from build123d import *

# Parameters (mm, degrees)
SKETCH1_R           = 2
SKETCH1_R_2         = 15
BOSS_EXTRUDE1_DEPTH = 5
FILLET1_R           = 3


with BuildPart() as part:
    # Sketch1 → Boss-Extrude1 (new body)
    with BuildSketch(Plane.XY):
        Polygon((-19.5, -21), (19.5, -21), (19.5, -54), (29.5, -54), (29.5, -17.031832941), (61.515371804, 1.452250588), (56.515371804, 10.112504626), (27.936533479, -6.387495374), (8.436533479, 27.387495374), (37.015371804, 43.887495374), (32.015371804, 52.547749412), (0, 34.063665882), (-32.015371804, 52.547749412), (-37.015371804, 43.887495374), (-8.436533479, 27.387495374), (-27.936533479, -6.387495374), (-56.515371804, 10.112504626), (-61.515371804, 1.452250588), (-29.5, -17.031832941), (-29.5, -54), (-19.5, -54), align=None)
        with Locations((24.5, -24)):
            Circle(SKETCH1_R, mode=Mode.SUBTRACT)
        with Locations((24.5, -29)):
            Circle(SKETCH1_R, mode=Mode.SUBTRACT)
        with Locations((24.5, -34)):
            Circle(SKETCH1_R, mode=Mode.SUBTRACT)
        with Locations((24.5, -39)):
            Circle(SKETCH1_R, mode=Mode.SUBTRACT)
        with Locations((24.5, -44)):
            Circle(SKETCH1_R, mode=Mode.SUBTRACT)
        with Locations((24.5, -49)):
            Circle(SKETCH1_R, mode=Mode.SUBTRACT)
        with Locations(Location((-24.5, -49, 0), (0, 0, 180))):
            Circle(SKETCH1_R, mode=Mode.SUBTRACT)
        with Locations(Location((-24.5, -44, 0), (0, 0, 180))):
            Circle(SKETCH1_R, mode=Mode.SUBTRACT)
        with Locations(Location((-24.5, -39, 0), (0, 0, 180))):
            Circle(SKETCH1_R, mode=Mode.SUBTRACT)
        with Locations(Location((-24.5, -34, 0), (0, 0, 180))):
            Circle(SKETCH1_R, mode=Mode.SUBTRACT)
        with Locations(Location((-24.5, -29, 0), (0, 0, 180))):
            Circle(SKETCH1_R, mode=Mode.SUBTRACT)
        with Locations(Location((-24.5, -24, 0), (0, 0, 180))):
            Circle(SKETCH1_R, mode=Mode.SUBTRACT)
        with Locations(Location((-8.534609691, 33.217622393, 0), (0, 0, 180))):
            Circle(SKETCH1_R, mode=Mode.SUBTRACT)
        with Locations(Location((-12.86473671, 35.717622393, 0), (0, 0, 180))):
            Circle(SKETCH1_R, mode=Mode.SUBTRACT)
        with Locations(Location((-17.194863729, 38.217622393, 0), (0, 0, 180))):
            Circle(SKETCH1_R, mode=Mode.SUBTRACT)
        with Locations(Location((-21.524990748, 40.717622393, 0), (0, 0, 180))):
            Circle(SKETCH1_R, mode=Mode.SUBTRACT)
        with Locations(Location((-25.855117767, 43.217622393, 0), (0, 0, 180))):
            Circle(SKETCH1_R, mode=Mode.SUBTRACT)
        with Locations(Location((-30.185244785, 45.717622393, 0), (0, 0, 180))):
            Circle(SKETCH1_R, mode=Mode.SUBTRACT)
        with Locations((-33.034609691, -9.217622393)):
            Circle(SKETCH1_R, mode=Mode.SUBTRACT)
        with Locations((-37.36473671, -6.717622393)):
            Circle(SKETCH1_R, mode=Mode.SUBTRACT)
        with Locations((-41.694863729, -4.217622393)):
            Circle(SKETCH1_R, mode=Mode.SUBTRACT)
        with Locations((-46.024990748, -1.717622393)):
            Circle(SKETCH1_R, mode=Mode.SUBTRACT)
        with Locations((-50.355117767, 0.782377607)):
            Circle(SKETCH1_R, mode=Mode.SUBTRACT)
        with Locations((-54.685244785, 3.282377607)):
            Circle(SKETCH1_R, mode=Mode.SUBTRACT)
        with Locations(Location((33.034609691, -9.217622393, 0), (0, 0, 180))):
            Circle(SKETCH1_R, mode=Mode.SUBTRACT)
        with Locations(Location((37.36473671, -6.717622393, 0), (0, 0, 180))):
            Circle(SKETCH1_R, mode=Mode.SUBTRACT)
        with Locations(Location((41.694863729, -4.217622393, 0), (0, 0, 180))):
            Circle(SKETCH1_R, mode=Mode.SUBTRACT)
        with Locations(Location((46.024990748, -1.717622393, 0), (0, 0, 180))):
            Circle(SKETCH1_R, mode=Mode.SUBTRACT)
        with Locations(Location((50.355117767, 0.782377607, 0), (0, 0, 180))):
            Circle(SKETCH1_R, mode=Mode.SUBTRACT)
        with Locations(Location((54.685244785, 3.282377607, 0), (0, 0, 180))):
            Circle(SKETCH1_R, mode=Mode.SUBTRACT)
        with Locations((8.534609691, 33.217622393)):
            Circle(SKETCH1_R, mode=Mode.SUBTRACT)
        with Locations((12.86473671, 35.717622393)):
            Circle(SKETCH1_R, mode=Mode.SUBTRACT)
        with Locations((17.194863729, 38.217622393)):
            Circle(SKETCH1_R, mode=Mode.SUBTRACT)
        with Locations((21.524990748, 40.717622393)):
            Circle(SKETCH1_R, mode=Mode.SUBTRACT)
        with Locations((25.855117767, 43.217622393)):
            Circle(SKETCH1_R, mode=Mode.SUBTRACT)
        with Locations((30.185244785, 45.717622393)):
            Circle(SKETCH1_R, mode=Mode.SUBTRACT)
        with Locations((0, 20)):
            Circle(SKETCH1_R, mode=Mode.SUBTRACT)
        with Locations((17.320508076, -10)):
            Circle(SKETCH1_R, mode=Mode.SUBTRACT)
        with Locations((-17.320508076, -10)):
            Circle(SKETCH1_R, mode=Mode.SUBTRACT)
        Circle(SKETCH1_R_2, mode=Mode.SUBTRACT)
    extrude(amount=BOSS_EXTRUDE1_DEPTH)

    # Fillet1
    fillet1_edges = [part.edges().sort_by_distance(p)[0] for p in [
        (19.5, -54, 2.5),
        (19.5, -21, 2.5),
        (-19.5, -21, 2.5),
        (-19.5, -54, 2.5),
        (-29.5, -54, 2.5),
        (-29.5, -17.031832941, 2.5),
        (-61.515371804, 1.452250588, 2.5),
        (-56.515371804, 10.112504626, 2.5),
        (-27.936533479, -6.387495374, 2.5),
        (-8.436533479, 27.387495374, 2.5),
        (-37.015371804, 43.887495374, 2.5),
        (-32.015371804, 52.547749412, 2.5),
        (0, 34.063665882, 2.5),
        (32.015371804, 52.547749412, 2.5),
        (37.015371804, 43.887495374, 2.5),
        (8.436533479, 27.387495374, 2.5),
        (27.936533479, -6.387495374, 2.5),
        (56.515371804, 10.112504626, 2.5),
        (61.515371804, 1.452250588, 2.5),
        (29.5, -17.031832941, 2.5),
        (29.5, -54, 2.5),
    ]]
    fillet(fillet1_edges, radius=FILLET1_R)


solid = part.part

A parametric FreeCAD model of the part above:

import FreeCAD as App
import Part
import Sketcher
from FreeCAD import Vector
Q = App.Units.Quantity


def edges_at(feature, points):
    """Names of the edges that pass closest to the given points."""
    edges = feature.Shape.Edges
    near = lambda p: min(range(len(edges)), key=lambda i: edges[i].distToShape(Part.Vertex(*p))[0])
    return sorted({f"Edge{near(p) + 1}" for p in points})


def add_polygon(sketch, points):
    """Adds a closed chain of lines whose ends are joined by coincident constraints."""
    first, n = sketch.GeometryCount, len(points)
    for a, b in zip(points, points[1:] + points[:1]):
        sketch.addGeometry(Part.LineSegment(App.Vector(*a, 0), App.Vector(*b, 0)), False)
    for i in range(n):
        sketch.addConstraint(Sketcher.Constraint("Coincident", first + i, 2, first + (i + 1) % n, 1))

doc = App.newDocument("Part")
body = doc.addObject("PartDesign::Body", "Body")

# Sketch on XY plane
sketch1 = body.newObject("Sketcher::SketchObject", "Sketch")
sketch1.AttachmentSupport = (doc.getObject("XY_Plane"), [""])
sketch1.MapMode = "FlatFace"
add_polygon(sketch1, [(-19.5, -21), (19.5, -21), (19.5, -54), (29.5, -54), (29.5, -17.031833), (61.515372, 1.452251), (56.515372, 10.112505), (27.936533, -6.387495), (8.436533, 27.387495), (37.015372, 43.887495), (32.015372, 52.547749), (0, 34.063666), (-32.015372, 52.547749), (-37.015372, 43.887495), (-8.436533, 27.387495), (-27.936533, -6.387495), (-56.515372, 10.112505), (-61.515372, 1.452251), (-29.5, -17.031833), (-29.5, -54), (-19.5, -54)])  # lines 0-20
sketch1.addGeometry(Part.Circle(Vector(-24.5, -49, 0), Vector(0, 0, 1), 2), False)  # 21
sketch1.addGeometry(Part.Circle(Vector(-24.5, -44, 0), Vector(0, 0, 1), 2), False)  # 22
sketch1.addGeometry(Part.Circle(Vector(-24.5, -39, 0), Vector(0, 0, 1), 2), False)  # 23
sketch1.addGeometry(Part.Circle(Vector(-24.5, -34, 0), Vector(0, 0, 1), 2), False)  # 24
sketch1.addGeometry(Part.Circle(Vector(-24.5, -29, 0), Vector(0, 0, 1), 2), False)  # 25
sketch1.addGeometry(Part.Circle(Vector(-46.024991, -1.717622, 0), Vector(0, 0, 1), 2), False)  # 26
sketch1.addGeometry(Part.Circle(Vector(-33.03461, -9.217622, 0), Vector(0, 0, 1), 2), False)  # 27
sketch1.addGeometry(Part.Circle(Vector(-37.364737, -6.717622, 0), Vector(0, 0, 1), 2), False)  # 28
sketch1.addGeometry(Part.Circle(Vector(-41.694864, -4.217622, 0), Vector(0, 0, 1), 2), False)  # 29
sketch1.addGeometry(Part.Circle(Vector(-24.5, -24, 0), Vector(0, 0, 1), 2), False)  # 30
sketch1.addGeometry(Part.Circle(Vector(-17.320508, -10, 0), Vector(0, 0, 1), 2), False)  # 31
sketch1.addGeometry(Part.Circle(Vector(24.5, -49, 0), Vector(0, 0, 1), 2), False)  # 32
sketch1.addGeometry(Part.Circle(Vector(24.5, -44, 0), Vector(0, 0, 1), 2), False)  # 33
sketch1.addGeometry(Part.Circle(Vector(24.5, -39, 0), Vector(0, 0, 1), 2), False)  # 34
sketch1.addGeometry(Part.Circle(Vector(24.5, -34, 0), Vector(0, 0, 1), 2), False)  # 35
sketch1.addGeometry(Part.Circle(Vector(24.5, -29, 0), Vector(0, 0, 1), 2), False)  # 36
sketch1.addGeometry(Part.Circle(Vector(24.5, -24, 0), Vector(0, 0, 1), 2), False)  # 37
sketch1.addGeometry(Part.Circle(Vector(17.320508, -10, 0), Vector(0, 0, 1), 2), False)  # 38
sketch1.addGeometry(Part.Circle(Vector(33.03461, -9.217622, 0), Vector(0, 0, 1), 2), False)  # 39
sketch1.addGeometry(Part.Circle(Vector(37.364737, -6.717622, 0), Vector(0, 0, 1), 2), False)  # 40
sketch1.addGeometry(Part.Circle(Vector(41.694864, -4.217622, 0), Vector(0, 0, 1), 2), False)  # 41
sketch1.addGeometry(Part.Circle(Vector(46.024991, -1.717622, 0), Vector(0, 0, 1), 2), False)  # 42
sketch1.addGeometry(Part.Circle(Vector(-50.355118, 0.782378, 0), Vector(0, 0, 1), 2), False)  # 43
sketch1.addGeometry(Part.Circle(Vector(-54.685245, 3.282378, 0), Vector(0, 0, 1), 2), False)  # 44
sketch1.addGeometry(Part.Circle(Vector(0, 0, 0), Vector(0, 0, 1), 15), False)  # 45
sketch1.addGeometry(Part.Circle(Vector(0, 20, 0), Vector(0, 0, 1), 2), False)  # 46
sketch1.addGeometry(Part.Circle(Vector(-30.185245, 45.717622, 0), Vector(0, 0, 1), 2), False)  # 47
sketch1.addGeometry(Part.Circle(Vector(-8.53461, 33.217622, 0), Vector(0, 0, 1), 2), False)  # 48
sketch1.addGeometry(Part.Circle(Vector(-21.524991, 40.717622, 0), Vector(0, 0, 1), 2), False)  # 49
sketch1.addGeometry(Part.Circle(Vector(-17.194864, 38.217622, 0), Vector(0, 0, 1), 2), False)  # 50
sketch1.addGeometry(Part.Circle(Vector(-25.855118, 43.217622, 0), Vector(0, 0, 1), 2), False)  # 51
sketch1.addGeometry(Part.Circle(Vector(-12.864737, 35.717622, 0), Vector(0, 0, 1), 2), False)  # 52
sketch1.addGeometry(Part.Circle(Vector(50.355118, 0.782378, 0), Vector(0, 0, 1), 2), False)  # 53
sketch1.addGeometry(Part.Circle(Vector(54.685245, 3.282378, 0), Vector(0, 0, 1), 2), False)  # 54
sketch1.addGeometry(Part.Circle(Vector(8.53461, 33.217622, 0), Vector(0, 0, 1), 2), False)  # 55
sketch1.addGeometry(Part.Circle(Vector(12.864737, 35.717622, 0), Vector(0, 0, 1), 2), False)  # 56
sketch1.addGeometry(Part.Circle(Vector(17.194864, 38.217622, 0), Vector(0, 0, 1), 2), False)  # 57
sketch1.addGeometry(Part.Circle(Vector(21.524991, 40.717622, 0), Vector(0, 0, 1), 2), False)  # 58
sketch1.addGeometry(Part.Circle(Vector(25.855118, 43.217622, 0), Vector(0, 0, 1), 2), False)  # 59
sketch1.addGeometry(Part.Circle(Vector(30.185245, 45.717622, 0), Vector(0, 0, 1), 2), False)  # 60
sketch1.addConstraint([
    Sketcher.Constraint("Horizontal", 0),
    Sketcher.Constraint("Vertical", 1),
    Sketcher.Constraint("Horizontal", 2),
    Sketcher.Constraint("Vertical", 3),
    Sketcher.Constraint("Vertical", 18),
    Sketcher.Constraint("Horizontal", 19),
    Sketcher.Constraint("Vertical", 20),
    Sketcher.Constraint("Coincident", 45, 3, -1, 1),
    Sketcher.Constraint("Equal", 21, 22),
    Sketcher.Constraint("Equal", 22, 23),
    Sketcher.Constraint("Equal", 23, 24),
    Sketcher.Constraint("Equal", 24, 25),
    Sketcher.Constraint("Equal", 25, 26),
    Sketcher.Constraint("Equal", 26, 27),
    Sketcher.Constraint("Equal", 27, 28),
    Sketcher.Constraint("Equal", 28, 29),
    Sketcher.Constraint("Equal", 29, 30),
    Sketcher.Constraint("Equal", 30, 31),
    Sketcher.Constraint("Equal", 31, 32),
    Sketcher.Constraint("Equal", 32, 33),
    Sketcher.Constraint("Equal", 33, 34),
    Sketcher.Constraint("Equal", 34, 35),
    Sketcher.Constraint("Equal", 35, 36),
    Sketcher.Constraint("Equal", 36, 37),
    Sketcher.Constraint("Equal", 37, 38),
    Sketcher.Constraint("Equal", 38, 39),
    Sketcher.Constraint("Equal", 39, 40),
    Sketcher.Constraint("Equal", 40, 41),
    Sketcher.Constraint("Equal", 41, 42),
    Sketcher.Constraint("Equal", 42, 43),
    Sketcher.Constraint("Equal", 43, 44),
    Sketcher.Constraint("Equal", 44, 46),
    Sketcher.Constraint("Equal", 46, 47),
    Sketcher.Constraint("Equal", 47, 48),
    Sketcher.Constraint("Equal", 48, 49),
    Sketcher.Constraint("Equal", 49, 50),
    Sketcher.Constraint("Equal", 50, 51),
    Sketcher.Constraint("Equal", 51, 52),
    Sketcher.Constraint("Equal", 52, 53),
    Sketcher.Constraint("Equal", 53, 54),
    Sketcher.Constraint("Equal", 54, 55),
    Sketcher.Constraint("Equal", 55, 56),
    Sketcher.Constraint("Equal", 56, 57),
    Sketcher.Constraint("Equal", 57, 58),
    Sketcher.Constraint("Equal", 58, 59),
    Sketcher.Constraint("Equal", 59, 60),
    Sketcher.Constraint("Symmetric", 21, 3, 32, 3, -2),
    Sketcher.Constraint("Symmetric", 22, 3, 33, 3, -2),
    Sketcher.Constraint("Symmetric", 23, 3, 34, 3, -2),
    Sketcher.Constraint("Symmetric", 24, 3, 35, 3, -2),
    Sketcher.Constraint("Symmetric", 25, 3, 36, 3, -2),
    Sketcher.Constraint("Symmetric", 30, 3, 37, 3, -2),
    Sketcher.Constraint("Symmetric", 31, 3, 38, 3, -2),
    Sketcher.Constraint("Symmetric", 27, 3, 39, 3, -2),
    Sketcher.Constraint("Symmetric", 28, 3, 40, 3, -2),
    Sketcher.Constraint("Symmetric", 29, 3, 41, 3, -2),
    Sketcher.Constraint("Symmetric", 26, 3, 42, 3, -2),
    Sketcher.Constraint("Symmetric", 43, 3, 53, 3, -2),
    Sketcher.Constraint("Symmetric", 44, 3, 54, 3, -2),
    Sketcher.Constraint("Symmetric", 48, 3, 55, 3, -2),
    Sketcher.Constraint("Symmetric", 52, 3, 56, 3, -2),
    Sketcher.Constraint("Symmetric", 50, 3, 57, 3, -2),
    Sketcher.Constraint("Symmetric", 49, 3, 58, 3, -2),
    Sketcher.Constraint("Symmetric", 51, 3, 59, 3, -2),
    Sketcher.Constraint("Symmetric", 47, 3, 60, 3, -2),
    Sketcher.Constraint("Symmetric", 9, 2, 11, 2, -2),
    Sketcher.Constraint("Symmetric", 8, 2, 12, 2, -2),
    Sketcher.Constraint("Symmetric", 7, 2, 13, 2, -2),
    Sketcher.Constraint("Symmetric", 6, 2, 14, 2, -2),
    Sketcher.Constraint("Symmetric", 5, 2, 15, 2, -2),
    Sketcher.Constraint("Symmetric", 4, 2, 16, 2, -2),
    Sketcher.Constraint("Symmetric", 3, 2, 17, 2, -2),
    Sketcher.Constraint("Symmetric", 1, 2, 19, 2, -2),
    Sketcher.Constraint("PointOnObject", 46, 3, -2),
    Sketcher.Constraint("PointOnObject", 10, 2, -2),
    Sketcher.Constraint("Perpendicular", 4, 5),
    Sketcher.Constraint("Perpendicular", 5, 6),
    Sketcher.Constraint("Perpendicular", 6, 7),
    Sketcher.Constraint("Perpendicular", 7, 8),
    Sketcher.Constraint("Perpendicular", 8, 9),
    Sketcher.Constraint("Perpendicular", 9, 10),
    Sketcher.Constraint("Vertical", 21, 3, 22, 3),
    Sketcher.Constraint("Vertical", 22, 3, 23, 3),
    Sketcher.Constraint("Vertical", 23, 3, 24, 3),
    Sketcher.Constraint("Vertical", 24, 3, 25, 3),
    Sketcher.Constraint("Vertical", 25, 3, 30, 3),
    Sketcher.Constraint("Equal", 6, 8),
    Sketcher.Constraint("Equal", 5, 9),
    Sketcher.Constraint("Equal", 4, 10),
    Sketcher.Constraint("Diameter", 21, 4.0),
    Sketcher.Constraint("Diameter", 45, 30.0),
    Sketcher.Constraint("DistanceX", 0, 1, 0, 2, 39.0),
    Sketcher.Constraint("DistanceX", 2, 1, 2, 2, 10.0),
    Sketcher.Constraint("DistanceY", 1, 2, 1, 1, 33.0),
    Sketcher.Constraint("Angle", 4, Q("30 deg")),
    Sketcher.Constraint("Distance", 5, 10.0),
    Sketcher.Constraint("Distance", 6, 33.0),
    Sketcher.Constraint("DistanceY", 21, 3, -1, 1, 49.0),
    Sketcher.Constraint("DistanceY", 22, 3, -1, 1, 44.0),
    Sketcher.Constraint("DistanceY", 23, 3, -1, 1, 39.0),
    Sketcher.Constraint("DistanceY", 24, 3, -1, 1, 34.0),
    Sketcher.Constraint("DistanceY", 25, 3, -1, 1, 29.0),
    Sketcher.Constraint("DistanceY", 30, 3, -1, 1, 24.0),
    Sketcher.Constraint("DistanceY", 31, 3, -1, 1, 10.0),
    Sketcher.Constraint("DistanceY", -1, 1, 46, 3, 20.0),
    Sketcher.Constraint("DistanceY", 0, 2, -1, 1, 21.0),
    Sketcher.Constraint("DistanceX", 21, 3, -1, 1, 24.5),
    Sketcher.Constraint("DistanceY", 3, 1, 3, 2, 36.968167),
    Sketcher.Constraint("DistanceX", 26, 3, -1, 1, 46.024991),
    Sketcher.Constraint("DistanceX", 27, 3, -1, 1, 33.03461),
    Sketcher.Constraint("DistanceX", 31, 3, -1, 1, 17.320508),
    Sketcher.Constraint("DistanceX", 48, 3, -1, 1, 8.53461),
    Sketcher.Constraint("DistanceX", 49, 3, -1, 1, 21.524991),
    Sketcher.Constraint("DistanceX", -1, 1, 4, 2, 61.515372),
    Sketcher.Constraint("DistanceY", 26, 3, -1, 1, 1.717622),
    Sketcher.Constraint("DistanceY", 27, 3, -1, 1, 9.217622),
    Sketcher.Constraint("DistanceX", 28, 3, -1, 1, 37.364737),
    Sketcher.Constraint("DistanceY", 28, 3, -1, 1, 6.717622),
    Sketcher.Constraint("DistanceX", 29, 3, -1, 1, 41.694864),
    Sketcher.Constraint("DistanceY", 29, 3, -1, 1, 4.217622),
    Sketcher.Constraint("DistanceX", 43, 3, -1, 1, 50.355118),
    Sketcher.Constraint("DistanceY", -1, 1, 43, 3, 0.782378),
    Sketcher.Constraint("DistanceX", 44, 3, -1, 1, 54.685245),
    Sketcher.Constraint("DistanceY", -1, 1, 44, 3, 3.282378),
    Sketcher.Constraint("DistanceX", 47, 3, -1, 1, 30.185245),
    Sketcher.Constraint("DistanceY", -1, 1, 47, 3, 45.717622),
    Sketcher.Constraint("DistanceY", -1, 1, 48, 3, 33.217622),
    Sketcher.Constraint("DistanceY", -1, 1, 49, 3, 40.717622),
    Sketcher.Constraint("DistanceX", 50, 3, -1, 1, 17.194864),
    Sketcher.Constraint("DistanceY", -1, 1, 50, 3, 38.217622),
    Sketcher.Constraint("DistanceX", 51, 3, -1, 1, 25.855118),
    Sketcher.Constraint("DistanceY", -1, 1, 51, 3, 43.217622),
    Sketcher.Constraint("DistanceX", 52, 3, -1, 1, 12.864737),
    Sketcher.Constraint("DistanceY", -1, 1, 52, 3, 35.717622),
])
pad1 = body.newObject("PartDesign::Pad", "Pad")
pad1.Profile = sketch1
pad1.Length = 5
doc.recompute()

fillet = body.newObject("PartDesign::Fillet", "Fillet")
fillet.Base = (pad1, edges_at(pad1, [
    (19.5, -54, 2.5),
    (19.5, -21, 2.5),
    (-19.5, -21, 2.5),
    (-19.5, -54, 2.5),
    (-29.5, -54, 2.5),
    (-29.5, -17.032, 2.5),
    (-61.515, 1.452, 2.5),
    (-56.515, 10.113, 2.5),
    (-27.937, -6.387, 2.5),
    (-8.437, 27.387, 2.5),
    (-37.015, 43.887, 2.5),
    (-32.015, 52.548, 2.5),
    (0, 34.064, 2.5),
    (32.015, 52.548, 2.5),
    (37.015, 43.887, 2.5),
    (8.437, 27.387, 2.5),
    (27.937, -6.387, 2.5),
    (56.515, 10.113, 2.5),
    (61.515, 1.452, 2.5),
    (29.5, -17.032, 2.5),
    (29.5, -54, 2.5),
]))
fillet.Radius = 3

doc.recompute()
